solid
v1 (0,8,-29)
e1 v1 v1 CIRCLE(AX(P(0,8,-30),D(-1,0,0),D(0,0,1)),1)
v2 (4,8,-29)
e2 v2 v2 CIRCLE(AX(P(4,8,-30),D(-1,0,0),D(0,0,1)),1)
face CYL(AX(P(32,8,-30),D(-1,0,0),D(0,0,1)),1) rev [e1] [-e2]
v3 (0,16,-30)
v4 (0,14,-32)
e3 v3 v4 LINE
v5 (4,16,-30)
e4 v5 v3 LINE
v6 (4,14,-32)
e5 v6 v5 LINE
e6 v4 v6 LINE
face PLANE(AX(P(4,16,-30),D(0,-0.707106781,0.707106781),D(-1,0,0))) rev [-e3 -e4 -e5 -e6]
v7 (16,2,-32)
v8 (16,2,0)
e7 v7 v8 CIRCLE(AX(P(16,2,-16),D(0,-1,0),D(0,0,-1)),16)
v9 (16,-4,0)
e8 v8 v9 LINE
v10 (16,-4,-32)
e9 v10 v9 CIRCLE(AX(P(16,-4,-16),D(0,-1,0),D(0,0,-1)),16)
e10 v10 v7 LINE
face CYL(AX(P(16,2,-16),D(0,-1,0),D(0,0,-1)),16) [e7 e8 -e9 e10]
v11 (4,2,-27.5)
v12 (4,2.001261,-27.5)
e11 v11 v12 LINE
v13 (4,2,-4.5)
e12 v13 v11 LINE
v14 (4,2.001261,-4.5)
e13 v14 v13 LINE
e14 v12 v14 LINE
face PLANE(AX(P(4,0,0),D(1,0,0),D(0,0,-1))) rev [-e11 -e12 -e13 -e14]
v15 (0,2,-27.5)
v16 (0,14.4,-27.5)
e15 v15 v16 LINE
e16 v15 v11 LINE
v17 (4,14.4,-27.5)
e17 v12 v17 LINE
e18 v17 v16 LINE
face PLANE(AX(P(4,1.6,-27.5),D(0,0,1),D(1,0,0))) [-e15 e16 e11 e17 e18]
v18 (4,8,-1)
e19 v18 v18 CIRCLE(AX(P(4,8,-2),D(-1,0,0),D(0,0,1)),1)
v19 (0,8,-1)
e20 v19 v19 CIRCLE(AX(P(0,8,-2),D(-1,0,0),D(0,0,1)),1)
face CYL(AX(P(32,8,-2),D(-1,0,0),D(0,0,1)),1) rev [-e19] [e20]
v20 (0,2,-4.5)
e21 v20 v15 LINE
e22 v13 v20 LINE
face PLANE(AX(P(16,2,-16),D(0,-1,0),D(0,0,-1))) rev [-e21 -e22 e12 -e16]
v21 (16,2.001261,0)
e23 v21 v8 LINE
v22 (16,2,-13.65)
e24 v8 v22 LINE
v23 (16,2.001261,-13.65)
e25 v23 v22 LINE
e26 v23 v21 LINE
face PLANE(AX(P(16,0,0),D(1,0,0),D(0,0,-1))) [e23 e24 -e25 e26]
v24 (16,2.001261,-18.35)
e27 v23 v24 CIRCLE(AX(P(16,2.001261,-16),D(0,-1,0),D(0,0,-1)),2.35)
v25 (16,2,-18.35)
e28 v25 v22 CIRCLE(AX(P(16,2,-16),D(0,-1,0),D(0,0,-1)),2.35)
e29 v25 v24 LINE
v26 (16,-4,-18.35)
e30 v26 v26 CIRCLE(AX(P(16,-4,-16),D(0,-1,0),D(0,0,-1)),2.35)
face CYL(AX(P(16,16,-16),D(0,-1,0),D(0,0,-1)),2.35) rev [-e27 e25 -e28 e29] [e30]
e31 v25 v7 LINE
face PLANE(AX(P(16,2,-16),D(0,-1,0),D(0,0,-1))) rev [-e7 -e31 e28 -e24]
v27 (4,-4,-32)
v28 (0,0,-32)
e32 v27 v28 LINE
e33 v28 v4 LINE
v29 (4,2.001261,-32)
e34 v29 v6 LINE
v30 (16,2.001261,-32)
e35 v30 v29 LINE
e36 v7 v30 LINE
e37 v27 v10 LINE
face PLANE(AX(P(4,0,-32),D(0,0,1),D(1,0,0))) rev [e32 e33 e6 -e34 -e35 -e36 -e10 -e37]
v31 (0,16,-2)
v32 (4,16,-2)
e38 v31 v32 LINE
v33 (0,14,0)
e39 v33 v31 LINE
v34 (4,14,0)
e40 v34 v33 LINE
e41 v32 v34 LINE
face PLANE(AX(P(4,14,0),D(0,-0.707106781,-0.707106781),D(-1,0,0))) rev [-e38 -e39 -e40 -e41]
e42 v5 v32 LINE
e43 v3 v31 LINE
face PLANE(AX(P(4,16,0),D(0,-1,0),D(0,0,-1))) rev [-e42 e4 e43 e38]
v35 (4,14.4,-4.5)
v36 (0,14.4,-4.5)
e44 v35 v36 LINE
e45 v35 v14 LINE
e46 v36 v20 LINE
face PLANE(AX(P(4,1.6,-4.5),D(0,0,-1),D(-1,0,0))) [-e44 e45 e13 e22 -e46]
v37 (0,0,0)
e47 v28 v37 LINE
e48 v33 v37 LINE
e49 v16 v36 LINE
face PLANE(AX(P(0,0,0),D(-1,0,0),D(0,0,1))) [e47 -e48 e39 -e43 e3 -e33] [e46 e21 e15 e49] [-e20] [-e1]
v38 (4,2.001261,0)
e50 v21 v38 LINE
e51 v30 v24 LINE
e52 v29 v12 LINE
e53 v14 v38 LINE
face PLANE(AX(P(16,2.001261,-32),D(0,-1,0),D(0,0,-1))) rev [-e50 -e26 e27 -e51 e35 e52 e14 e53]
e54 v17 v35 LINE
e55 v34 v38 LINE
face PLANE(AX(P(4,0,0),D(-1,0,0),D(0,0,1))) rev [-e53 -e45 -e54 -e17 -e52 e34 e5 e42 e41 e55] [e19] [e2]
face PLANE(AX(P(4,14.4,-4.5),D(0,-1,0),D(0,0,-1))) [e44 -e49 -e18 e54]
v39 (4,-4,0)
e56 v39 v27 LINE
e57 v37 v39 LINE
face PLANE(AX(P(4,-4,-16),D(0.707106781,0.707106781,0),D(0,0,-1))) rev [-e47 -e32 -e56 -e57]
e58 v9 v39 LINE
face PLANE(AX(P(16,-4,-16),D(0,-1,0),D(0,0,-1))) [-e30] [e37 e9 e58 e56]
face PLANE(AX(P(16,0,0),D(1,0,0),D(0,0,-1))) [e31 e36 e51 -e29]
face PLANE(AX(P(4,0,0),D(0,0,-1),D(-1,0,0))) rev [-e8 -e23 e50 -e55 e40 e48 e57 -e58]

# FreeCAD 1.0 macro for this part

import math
import FreeCAD as App
import Part
import Sketcher
Q = App.Units.Quantity


def edges_at(feature, points):
    """Names of the edges that pass closest to the given points."""
    edges = feature.Shape.Edges
    near = lambda p: min(range(len(edges)), key=lambda i: edges[i].distToShape(Part.Vertex(*p))[0])
    return sorted({f"Edge{near(p) + 1}" for p in points})

doc = App.newDocument("Part")
body = doc.addObject("PartDesign::Body", "Body")

# Sketch on YZ plane
sketch1 = doc.addObject("Sketcher::SketchObject", "Sketch")
body.addObject(sketch1)
sketch1.AttachmentSupport = (doc.YZ_Plane, [""])
sketch1.MapMode = "FlatFace"
sketch1.addGeometry([
    Part.LineSegment(App.Vector(16, 0, 0), App.Vector(0, 0, 0)),  # 0
    Part.LineSegment(App.Vector(0, 0, 0), App.Vector(0, -32, 0)),  # 1
    Part.LineSegment(App.Vector(0, -32, 0), App.Vector(16, -32, 0)),  # 2
    Part.LineSegment(App.Vector(16, -32, 0), App.Vector(16, 0, 0)),  # 3
    Part.LineSegment(App.Vector(1.6, -27.5, 0), App.Vector(1.6, -4.5, 0)),  # 4
    Part.LineSegment(App.Vector(1.6, -4.5, 0), App.Vector(14.4, -4.5, 0)),  # 5
    Part.LineSegment(App.Vector(14.4, -4.5, 0), App.Vector(14.4, -27.5, 0)),  # 6
    Part.LineSegment(App.Vector(14.4, -27.5, 0), App.Vector(1.6, -27.5, 0)),  # 7
], False)
sketch1.addConstraint([
    Sketcher.Constraint("Coincident", 0, 2, 1, 1),
    Sketcher.Constraint("Coincident", 1, 2, 2, 1),
    Sketcher.Constraint("Coincident", 2, 2, 3, 1),
    Sketcher.Constraint("Coincident", 3, 2, 0, 1),
    Sketcher.Constraint("Coincident", 4, 2, 5, 1),
    Sketcher.Constraint("Coincident", 5, 2, 6, 1),
    Sketcher.Constraint("Coincident", 6, 2, 7, 1),
    Sketcher.Constraint("Coincident", 7, 2, 4, 1),
    Sketcher.Constraint("Horizontal", 0),
    Sketcher.Constraint("Vertical", 1),
    Sketcher.Constraint("Horizontal", 2),
    Sketcher.Constraint("Vertical", 3),
    Sketcher.Constraint("Vertical", 4),
    Sketcher.Constraint("Horizontal", 5),
    Sketcher.Constraint("Vertical", 6),
    Sketcher.Constraint("Horizontal", 7),
    Sketcher.Constraint("Coincident", 0, 2, -1, 1),
    Sketcher.Constraint("DistanceX", 0, 2, 0, 1, Q("16 mm")),
    Sketcher.Constraint("DistanceY", 1, 2, 1, 1, Q("32 mm")),
    Sketcher.Constraint("DistanceY", 4, 1, 4, 2, Q("23 mm")),
    Sketcher.Constraint("DistanceX", 5, 1, 5, 2, Q("12.8 mm")),
    Sketcher.Constraint("DistanceX", -1, 1, 4, 2, Q("1.6 mm")),
    Sketcher.Constraint("DistanceY", 4, 2, -1, 1, Q("4.5 mm")),
])
pad1 = doc.addObject("PartDesign::Pad", "Pad")
body.addObject(pad1)
pad1.Profile = sketch1
pad1.Length = 4

# Sketch on YZ plane
sketch2 = doc.addObject("Sketcher::SketchObject", "Sketch001")
body.addObject(sketch2)
sketch2.AttachmentSupport = (doc.YZ_Plane, [""])
sketch2.MapMode = "FlatFace"
sketch2.AttachmentOffset = App.Placement(App.Vector(0, 0, 4), App.Rotation())
sketch2.addGeometry([
    Part.LineSegment(App.Vector(2.001261, 0, 0), App.Vector(0, 0, 0)),
    Part.LineSegment(App.Vector(0, 0, 0), App.Vector(0, -32, 0)),
    Part.LineSegment(App.Vector(0, -32, 0), App.Vector(2.001261, -32, 0)),
    Part.LineSegment(App.Vector(2.001261, -32, 0), App.Vector(2.001261, 0, 0)),
], False)
sketch2.addConstraint([
    Sketcher.Constraint("Coincident", 0, 2, 1, 1),
    Sketcher.Constraint("Coincident", 1, 2, 2, 1),
    Sketcher.Constraint("Coincident", 2, 2, 3, 1),
    Sketcher.Constraint("Coincident", 3, 2, 0, 1),
    Sketcher.Constraint("Horizontal", 0),
    Sketcher.Constraint("Vertical", 1),
    Sketcher.Constraint("Horizontal", 2),
    Sketcher.Constraint("Vertical", 3),
    Sketcher.Constraint("Coincident", 0, 2, -1, 1),
    Sketcher.Constraint("DistanceY", 1, 2, 1, 1, Q("32 mm")),
    Sketcher.Constraint("DistanceX", 0, 2, 0, 1, Q("2.001261 mm")),
])
pad2 = doc.addObject("PartDesign::Pad", "Pad001")
body.addObject(pad2)
pad2.Profile = sketch2
pad2.Length = 12

# Sketch on XZ plane
sketch3 = doc.addObject("Sketcher::SketchObject", "Sketch002")
body.addObject(sketch3)
sketch3.AttachmentSupport = (doc.XZ_Plane, [""])
sketch3.MapMode = "FlatFace"
sketch3.addGeometry([
    Part.LineSegment(App.Vector(16, 0, 0), App.Vector(0, 0, 0)),
    Part.LineSegment(App.Vector(0, 0, 0), App.Vector(0, -32, 0)),
    Part.LineSegment(App.Vector(0, -32, 0), App.Vector(16, -32, 0)),
    Part.ArcOfCircle(Part.Circle(App.Vector(16, -16, 0), App.Vector(0, 0, 1), 16), math.radians(-90), math.radians(90)),
], False)
sketch3.addConstraint([
    Sketcher.Constraint("Coincident", 0, 2, 1, 1),
    Sketcher.Constraint("Coincident", 1, 2, 2, 1),
    Sketcher.Constraint("Tangent", 2, 2, 3, 1),
    Sketcher.Constraint("Tangent", 3, 2, 0, 1),
    Sketcher.Constraint("Horizontal", 0),
    Sketcher.Constraint("Vertical", 1),
    Sketcher.Constraint("Horizontal", 2),
    Sketcher.Constraint("Coincident", 0, 2, -1, 1),
    Sketcher.Constraint("Radius", 3, Q("16 mm")),
    Sketcher.Constraint("DistanceX", 0, 2, 0, 1, Q("16 mm")),
])
pad3 = doc.addObject("PartDesign::Pad", "Pad002")
body.addObject(pad3)
pad3.Profile = sketch3
pad3.Type = "TwoLengths"
pad3.Length = 4
pad3.Length2 = 2
doc.recompute()

chamfer = doc.addObject("PartDesign::Chamfer", "Chamfer")
body.addObject(chamfer)
chamfer.Base = (pad3, edges_at(pad3, [(0, -4, -16)]))
chamfer.Size = 4

# Sketch on XZ plane
sketch4 = doc.addObject("Sketcher::SketchObject", "Sketch003")
body.addObject(sketch4)
sketch4.AttachmentSupport = (doc.XZ_Plane, [""])
sketch4.MapMode = "FlatFace"
sketch4.AttachmentOffset = App.Placement(App.Vector(0, 0, 4), App.Rotation())
sketch4.addGeometry(Part.Circle(App.Vector(16, -16, 0), App.Vector(0, 0, 1), 2.35), False)
sketch4.addConstraint([
    Sketcher.Constraint("Diameter", 0, Q("4.7 mm")),
    Sketcher.Constraint("DistanceX", -1, 1, 0, 3, Q("16 mm")),
    Sketcher.Constraint("DistanceY", 0, 3, -1, 1, Q("16 mm")),
])
pocket1 = doc.addObject("PartDesign::Pocket", "Pocket")
body.addObject(pocket1)
pocket1.Profile = sketch4
pocket1.Type = "ThroughAll"

# Sketch on YZ plane
sketch5 = doc.addObject("Sketcher::SketchObject", "Sketch004")
body.addObject(sketch5)
sketch5.AttachmentSupport = (doc.YZ_Plane, [""])
sketch5.MapMode = "FlatFace"
sketch5.addGeometry([
    Part.Circle(App.Vector(8, -30, 0), App.Vector(0, 0, 1), 1),
    Part.Circle(App.Vector(8, -2, 0), App.Vector(0, 0, 1), 1),
], False)
sketch5.addConstraint([
    Sketcher.Constraint("Equal", 0, 1),
    Sketcher.Constraint("Vertical", 0, 3, 1, 3),
    Sketcher.Constraint("Diameter", 0, Q("2 mm")),
    Sketcher.Constraint("DistanceX", -1, 1, 0, 3, Q("8 mm")),
    Sketcher.Constraint("DistanceY", 0, 3, -1, 1, Q("30 mm")),
    Sketcher.Constraint("DistanceY", 1, 3, -1, 1, Q("2 mm")),
])
pocket2 = doc.addObject("PartDesign::Pocket", "Pocket001")
body.addObject(pocket2)
pocket2.Profile = sketch5
pocket2.Type = "ThroughAll"
pocket2.Reversed = True
doc.recompute()

chamfer2 = doc.addObject("PartDesign::Chamfer", "Chamfer001")
body.addObject(chamfer2)
chamfer2.Base = (pocket2, edges_at(pocket2, [(2, 16, 0), (2, 16, -32)]))
chamfer2.Size = 2

doc.recompute()
